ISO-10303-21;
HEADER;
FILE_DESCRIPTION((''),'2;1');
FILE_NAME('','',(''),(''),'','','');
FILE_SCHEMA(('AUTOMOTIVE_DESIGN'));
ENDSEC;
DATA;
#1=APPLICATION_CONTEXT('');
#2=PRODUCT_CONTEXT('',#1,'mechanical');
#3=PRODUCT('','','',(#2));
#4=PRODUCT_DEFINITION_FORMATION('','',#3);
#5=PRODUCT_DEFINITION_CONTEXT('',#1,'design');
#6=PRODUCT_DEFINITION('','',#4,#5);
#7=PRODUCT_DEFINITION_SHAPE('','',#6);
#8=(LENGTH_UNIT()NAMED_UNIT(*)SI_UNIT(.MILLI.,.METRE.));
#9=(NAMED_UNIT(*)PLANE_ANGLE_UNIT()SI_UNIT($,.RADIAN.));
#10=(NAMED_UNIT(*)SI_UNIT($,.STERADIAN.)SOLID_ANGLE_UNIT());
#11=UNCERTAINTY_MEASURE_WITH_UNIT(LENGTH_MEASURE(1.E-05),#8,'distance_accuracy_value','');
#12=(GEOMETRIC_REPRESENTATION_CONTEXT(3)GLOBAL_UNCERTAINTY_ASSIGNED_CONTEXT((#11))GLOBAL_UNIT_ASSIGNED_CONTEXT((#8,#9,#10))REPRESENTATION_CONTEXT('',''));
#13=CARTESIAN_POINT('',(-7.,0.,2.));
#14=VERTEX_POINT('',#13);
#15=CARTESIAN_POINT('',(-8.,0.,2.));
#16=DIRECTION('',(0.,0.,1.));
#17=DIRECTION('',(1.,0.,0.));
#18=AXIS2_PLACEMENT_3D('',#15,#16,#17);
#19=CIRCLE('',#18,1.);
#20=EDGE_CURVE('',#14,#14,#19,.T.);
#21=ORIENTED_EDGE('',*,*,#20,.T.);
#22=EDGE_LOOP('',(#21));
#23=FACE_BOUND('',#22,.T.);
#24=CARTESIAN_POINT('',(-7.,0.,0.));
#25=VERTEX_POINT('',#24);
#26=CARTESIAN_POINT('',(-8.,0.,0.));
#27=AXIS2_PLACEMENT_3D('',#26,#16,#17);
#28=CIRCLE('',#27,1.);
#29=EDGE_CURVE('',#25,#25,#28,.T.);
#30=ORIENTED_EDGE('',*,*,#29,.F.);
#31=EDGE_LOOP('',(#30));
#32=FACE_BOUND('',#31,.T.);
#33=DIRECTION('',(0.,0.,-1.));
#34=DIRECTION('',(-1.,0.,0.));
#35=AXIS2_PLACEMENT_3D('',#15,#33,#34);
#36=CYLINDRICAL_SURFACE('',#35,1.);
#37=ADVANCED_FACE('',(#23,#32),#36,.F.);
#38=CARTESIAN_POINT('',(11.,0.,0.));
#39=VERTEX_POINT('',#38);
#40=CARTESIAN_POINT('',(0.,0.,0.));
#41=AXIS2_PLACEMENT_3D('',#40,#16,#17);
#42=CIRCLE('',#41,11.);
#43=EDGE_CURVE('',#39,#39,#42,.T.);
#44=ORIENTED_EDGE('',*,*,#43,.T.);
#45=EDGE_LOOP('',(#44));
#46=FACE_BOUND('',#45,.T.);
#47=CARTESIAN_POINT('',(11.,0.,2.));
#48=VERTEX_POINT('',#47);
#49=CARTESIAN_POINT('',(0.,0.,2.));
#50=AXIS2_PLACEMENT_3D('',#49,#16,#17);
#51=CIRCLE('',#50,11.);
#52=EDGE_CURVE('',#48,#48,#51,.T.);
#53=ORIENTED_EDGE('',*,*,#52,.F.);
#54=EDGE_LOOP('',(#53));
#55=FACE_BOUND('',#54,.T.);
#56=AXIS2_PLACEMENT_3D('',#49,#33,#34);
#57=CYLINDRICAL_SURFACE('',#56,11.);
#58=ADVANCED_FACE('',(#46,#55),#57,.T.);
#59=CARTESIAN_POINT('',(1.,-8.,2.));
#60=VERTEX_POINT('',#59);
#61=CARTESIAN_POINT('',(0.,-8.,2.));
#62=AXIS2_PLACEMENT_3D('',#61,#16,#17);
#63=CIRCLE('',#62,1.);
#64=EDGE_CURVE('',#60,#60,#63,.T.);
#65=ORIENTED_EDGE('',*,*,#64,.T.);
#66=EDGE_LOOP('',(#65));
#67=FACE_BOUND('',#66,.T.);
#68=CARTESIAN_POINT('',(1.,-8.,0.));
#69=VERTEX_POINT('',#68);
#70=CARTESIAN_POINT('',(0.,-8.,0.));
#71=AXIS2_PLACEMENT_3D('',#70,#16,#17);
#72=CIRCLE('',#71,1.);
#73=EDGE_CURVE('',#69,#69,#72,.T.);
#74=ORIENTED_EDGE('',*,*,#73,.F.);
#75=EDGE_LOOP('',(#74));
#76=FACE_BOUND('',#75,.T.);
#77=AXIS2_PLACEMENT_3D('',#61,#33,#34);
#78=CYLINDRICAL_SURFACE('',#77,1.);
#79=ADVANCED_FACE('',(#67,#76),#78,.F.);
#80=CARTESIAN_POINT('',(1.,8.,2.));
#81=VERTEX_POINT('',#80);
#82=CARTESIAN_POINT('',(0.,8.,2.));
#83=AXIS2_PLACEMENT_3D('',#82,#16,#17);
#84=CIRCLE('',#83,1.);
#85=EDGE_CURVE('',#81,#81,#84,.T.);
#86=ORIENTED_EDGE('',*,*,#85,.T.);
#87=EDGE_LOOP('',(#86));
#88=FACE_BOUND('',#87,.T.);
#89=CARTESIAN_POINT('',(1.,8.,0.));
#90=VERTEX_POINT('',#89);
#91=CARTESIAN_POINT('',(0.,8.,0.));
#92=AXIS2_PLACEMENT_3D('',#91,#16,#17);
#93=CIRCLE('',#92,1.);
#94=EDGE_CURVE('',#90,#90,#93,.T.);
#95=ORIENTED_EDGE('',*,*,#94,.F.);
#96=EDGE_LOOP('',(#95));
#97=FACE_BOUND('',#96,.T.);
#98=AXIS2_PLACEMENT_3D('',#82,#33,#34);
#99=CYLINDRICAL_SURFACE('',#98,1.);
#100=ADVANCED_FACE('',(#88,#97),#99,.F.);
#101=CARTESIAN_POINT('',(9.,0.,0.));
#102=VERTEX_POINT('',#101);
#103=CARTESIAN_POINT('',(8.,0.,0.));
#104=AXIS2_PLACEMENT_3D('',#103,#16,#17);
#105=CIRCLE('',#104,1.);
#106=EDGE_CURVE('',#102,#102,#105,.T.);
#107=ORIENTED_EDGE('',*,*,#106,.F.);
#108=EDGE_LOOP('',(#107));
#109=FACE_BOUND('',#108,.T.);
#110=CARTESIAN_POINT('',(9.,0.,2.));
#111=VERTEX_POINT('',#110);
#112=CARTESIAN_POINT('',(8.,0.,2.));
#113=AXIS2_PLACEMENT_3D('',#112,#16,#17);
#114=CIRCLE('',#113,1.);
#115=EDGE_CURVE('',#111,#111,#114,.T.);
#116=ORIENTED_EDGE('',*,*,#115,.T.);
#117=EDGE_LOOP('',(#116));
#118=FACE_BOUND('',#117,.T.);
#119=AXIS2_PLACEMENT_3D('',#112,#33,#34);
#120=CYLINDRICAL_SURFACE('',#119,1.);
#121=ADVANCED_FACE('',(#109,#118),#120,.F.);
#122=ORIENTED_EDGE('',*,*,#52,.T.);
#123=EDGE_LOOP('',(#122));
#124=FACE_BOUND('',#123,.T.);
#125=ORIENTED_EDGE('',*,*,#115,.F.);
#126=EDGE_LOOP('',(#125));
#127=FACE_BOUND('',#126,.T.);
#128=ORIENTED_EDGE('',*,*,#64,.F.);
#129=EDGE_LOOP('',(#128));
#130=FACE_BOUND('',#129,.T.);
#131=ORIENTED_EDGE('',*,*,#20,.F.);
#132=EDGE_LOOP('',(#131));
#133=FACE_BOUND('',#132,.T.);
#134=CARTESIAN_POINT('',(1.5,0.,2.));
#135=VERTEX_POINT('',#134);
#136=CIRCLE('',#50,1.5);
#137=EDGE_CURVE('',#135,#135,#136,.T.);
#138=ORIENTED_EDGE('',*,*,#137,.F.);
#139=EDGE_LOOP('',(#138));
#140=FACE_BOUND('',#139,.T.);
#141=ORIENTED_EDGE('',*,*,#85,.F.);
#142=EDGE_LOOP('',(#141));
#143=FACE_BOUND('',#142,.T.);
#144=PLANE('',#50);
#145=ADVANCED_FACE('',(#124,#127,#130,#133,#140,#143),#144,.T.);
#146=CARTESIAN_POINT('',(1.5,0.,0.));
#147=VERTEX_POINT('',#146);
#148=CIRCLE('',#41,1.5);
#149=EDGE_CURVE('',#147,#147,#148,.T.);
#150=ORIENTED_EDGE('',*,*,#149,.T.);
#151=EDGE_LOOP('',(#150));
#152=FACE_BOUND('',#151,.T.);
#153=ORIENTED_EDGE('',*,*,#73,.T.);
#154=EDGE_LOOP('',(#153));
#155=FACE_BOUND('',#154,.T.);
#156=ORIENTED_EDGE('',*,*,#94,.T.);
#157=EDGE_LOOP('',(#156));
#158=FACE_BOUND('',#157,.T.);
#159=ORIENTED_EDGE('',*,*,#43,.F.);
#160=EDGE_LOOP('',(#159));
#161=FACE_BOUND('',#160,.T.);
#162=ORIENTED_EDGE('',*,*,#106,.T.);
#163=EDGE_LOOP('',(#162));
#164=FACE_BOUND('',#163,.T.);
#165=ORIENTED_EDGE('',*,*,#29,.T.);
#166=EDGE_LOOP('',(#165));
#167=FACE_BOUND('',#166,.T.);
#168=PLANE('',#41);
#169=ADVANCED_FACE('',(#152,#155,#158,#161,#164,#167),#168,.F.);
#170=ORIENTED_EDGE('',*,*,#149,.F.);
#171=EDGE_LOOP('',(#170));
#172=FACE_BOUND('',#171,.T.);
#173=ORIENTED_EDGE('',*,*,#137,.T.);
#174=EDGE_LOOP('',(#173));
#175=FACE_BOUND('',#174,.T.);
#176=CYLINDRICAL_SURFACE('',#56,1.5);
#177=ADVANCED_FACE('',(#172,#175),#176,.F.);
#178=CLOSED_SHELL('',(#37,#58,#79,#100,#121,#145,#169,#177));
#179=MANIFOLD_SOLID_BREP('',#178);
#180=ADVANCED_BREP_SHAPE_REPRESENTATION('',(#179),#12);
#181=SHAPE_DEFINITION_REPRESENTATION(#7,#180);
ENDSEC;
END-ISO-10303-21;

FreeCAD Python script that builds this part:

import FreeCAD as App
import Part
import Sketcher
from FreeCAD import Vector

doc = App.newDocument("Part")
params = doc.addObject("Spreadsheet::Sheet", "Params")
for row, (alias, value) in enumerate([
    ("sketch1_diameter", "22 mm"),
    ("sketch1_diameter2", "2 mm"),
    ("sketch1_diameter3", "3 mm"),
    ("pad1_length", "2 mm"),
], start=1):
    params.set(f"A{row}", alias)
    params.set(f"B{row}", "=" + value)
    params.setAlias(f"B{row}", alias)

body = doc.addObject("PartDesign::Body", "Body")

# Sketch on XY plane
sketch1 = doc.addObject("Sketcher::SketchObject", "Sketch")
body.addObject(sketch1)
sketch1.AttachmentSupport = (doc.XY_Plane, [""])
sketch1.MapMode = "FlatFace"
sketch1.addGeometry([
    Part.Circle(Vector(0, 0, 0), Vector(0, 0, 1), 11),  # 0
    Part.Circle(Vector(0, -8, 0), Vector(0, 0, 1), 1),  # 1
    Part.Circle(Vector(-8, 0, 0), Vector(0, 0, 1), 1),  # 2
    Part.Circle(Vector(0, 0, 0), Vector(0, 0, 1), 1.5),  # 3
    Part.Circle(Vector(8, 0, 0), Vector(0, 0, 1), 1),  # 4
    Part.Circle(Vector(0, 8, 0), Vector(0, 0, 1), 1),  # 5
], False)
sketch1.addConstraint([
    Sketcher.Constraint("Coincident", 0, 3, -1, 1),
    Sketcher.Constraint("Coincident", 3, 3, -1, 1),
    Sketcher.Constraint("Equal", 1, 2),
    Sketcher.Constraint("Equal", 2, 4),
    Sketcher.Constraint("Equal", 4, 5),
    Sketcher.Constraint("Symmetric", 2, 3, 4, 3, -1, 1),
    Sketcher.Constraint("Symmetric", 1, 3, 5, 3, -1, 1),
    Sketcher.Constraint("PointOnObject", 1, 3, -2),
    Sketcher.Constraint("PointOnObject", 2, 3, -1),
    Sketcher.Constraint("Diameter", 0, 22.0),
    Sketcher.Constraint("Diameter", 1, 2.0),
    Sketcher.Constraint("Diameter", 3, 3.0),
    Sketcher.Constraint("DistanceY", 1, 3, -1, 1, 8.0),
    Sketcher.Constraint("DistanceX", 2, 3, -1, 1, 8.0),
])
sketch1.setExpression("Constraints[9]", "Params.sketch1_diameter")
sketch1.setExpression("Constraints[10]", "Params.sketch1_diameter2")
sketch1.setExpression("Constraints[11]", "Params.sketch1_diameter3")
pad1 = doc.addObject("PartDesign::Pad", "Pad")
body.addObject(pad1)
pad1.Profile = sketch1
pad1.setExpression("Length", "Params.pad1_length")

doc.recompute()
